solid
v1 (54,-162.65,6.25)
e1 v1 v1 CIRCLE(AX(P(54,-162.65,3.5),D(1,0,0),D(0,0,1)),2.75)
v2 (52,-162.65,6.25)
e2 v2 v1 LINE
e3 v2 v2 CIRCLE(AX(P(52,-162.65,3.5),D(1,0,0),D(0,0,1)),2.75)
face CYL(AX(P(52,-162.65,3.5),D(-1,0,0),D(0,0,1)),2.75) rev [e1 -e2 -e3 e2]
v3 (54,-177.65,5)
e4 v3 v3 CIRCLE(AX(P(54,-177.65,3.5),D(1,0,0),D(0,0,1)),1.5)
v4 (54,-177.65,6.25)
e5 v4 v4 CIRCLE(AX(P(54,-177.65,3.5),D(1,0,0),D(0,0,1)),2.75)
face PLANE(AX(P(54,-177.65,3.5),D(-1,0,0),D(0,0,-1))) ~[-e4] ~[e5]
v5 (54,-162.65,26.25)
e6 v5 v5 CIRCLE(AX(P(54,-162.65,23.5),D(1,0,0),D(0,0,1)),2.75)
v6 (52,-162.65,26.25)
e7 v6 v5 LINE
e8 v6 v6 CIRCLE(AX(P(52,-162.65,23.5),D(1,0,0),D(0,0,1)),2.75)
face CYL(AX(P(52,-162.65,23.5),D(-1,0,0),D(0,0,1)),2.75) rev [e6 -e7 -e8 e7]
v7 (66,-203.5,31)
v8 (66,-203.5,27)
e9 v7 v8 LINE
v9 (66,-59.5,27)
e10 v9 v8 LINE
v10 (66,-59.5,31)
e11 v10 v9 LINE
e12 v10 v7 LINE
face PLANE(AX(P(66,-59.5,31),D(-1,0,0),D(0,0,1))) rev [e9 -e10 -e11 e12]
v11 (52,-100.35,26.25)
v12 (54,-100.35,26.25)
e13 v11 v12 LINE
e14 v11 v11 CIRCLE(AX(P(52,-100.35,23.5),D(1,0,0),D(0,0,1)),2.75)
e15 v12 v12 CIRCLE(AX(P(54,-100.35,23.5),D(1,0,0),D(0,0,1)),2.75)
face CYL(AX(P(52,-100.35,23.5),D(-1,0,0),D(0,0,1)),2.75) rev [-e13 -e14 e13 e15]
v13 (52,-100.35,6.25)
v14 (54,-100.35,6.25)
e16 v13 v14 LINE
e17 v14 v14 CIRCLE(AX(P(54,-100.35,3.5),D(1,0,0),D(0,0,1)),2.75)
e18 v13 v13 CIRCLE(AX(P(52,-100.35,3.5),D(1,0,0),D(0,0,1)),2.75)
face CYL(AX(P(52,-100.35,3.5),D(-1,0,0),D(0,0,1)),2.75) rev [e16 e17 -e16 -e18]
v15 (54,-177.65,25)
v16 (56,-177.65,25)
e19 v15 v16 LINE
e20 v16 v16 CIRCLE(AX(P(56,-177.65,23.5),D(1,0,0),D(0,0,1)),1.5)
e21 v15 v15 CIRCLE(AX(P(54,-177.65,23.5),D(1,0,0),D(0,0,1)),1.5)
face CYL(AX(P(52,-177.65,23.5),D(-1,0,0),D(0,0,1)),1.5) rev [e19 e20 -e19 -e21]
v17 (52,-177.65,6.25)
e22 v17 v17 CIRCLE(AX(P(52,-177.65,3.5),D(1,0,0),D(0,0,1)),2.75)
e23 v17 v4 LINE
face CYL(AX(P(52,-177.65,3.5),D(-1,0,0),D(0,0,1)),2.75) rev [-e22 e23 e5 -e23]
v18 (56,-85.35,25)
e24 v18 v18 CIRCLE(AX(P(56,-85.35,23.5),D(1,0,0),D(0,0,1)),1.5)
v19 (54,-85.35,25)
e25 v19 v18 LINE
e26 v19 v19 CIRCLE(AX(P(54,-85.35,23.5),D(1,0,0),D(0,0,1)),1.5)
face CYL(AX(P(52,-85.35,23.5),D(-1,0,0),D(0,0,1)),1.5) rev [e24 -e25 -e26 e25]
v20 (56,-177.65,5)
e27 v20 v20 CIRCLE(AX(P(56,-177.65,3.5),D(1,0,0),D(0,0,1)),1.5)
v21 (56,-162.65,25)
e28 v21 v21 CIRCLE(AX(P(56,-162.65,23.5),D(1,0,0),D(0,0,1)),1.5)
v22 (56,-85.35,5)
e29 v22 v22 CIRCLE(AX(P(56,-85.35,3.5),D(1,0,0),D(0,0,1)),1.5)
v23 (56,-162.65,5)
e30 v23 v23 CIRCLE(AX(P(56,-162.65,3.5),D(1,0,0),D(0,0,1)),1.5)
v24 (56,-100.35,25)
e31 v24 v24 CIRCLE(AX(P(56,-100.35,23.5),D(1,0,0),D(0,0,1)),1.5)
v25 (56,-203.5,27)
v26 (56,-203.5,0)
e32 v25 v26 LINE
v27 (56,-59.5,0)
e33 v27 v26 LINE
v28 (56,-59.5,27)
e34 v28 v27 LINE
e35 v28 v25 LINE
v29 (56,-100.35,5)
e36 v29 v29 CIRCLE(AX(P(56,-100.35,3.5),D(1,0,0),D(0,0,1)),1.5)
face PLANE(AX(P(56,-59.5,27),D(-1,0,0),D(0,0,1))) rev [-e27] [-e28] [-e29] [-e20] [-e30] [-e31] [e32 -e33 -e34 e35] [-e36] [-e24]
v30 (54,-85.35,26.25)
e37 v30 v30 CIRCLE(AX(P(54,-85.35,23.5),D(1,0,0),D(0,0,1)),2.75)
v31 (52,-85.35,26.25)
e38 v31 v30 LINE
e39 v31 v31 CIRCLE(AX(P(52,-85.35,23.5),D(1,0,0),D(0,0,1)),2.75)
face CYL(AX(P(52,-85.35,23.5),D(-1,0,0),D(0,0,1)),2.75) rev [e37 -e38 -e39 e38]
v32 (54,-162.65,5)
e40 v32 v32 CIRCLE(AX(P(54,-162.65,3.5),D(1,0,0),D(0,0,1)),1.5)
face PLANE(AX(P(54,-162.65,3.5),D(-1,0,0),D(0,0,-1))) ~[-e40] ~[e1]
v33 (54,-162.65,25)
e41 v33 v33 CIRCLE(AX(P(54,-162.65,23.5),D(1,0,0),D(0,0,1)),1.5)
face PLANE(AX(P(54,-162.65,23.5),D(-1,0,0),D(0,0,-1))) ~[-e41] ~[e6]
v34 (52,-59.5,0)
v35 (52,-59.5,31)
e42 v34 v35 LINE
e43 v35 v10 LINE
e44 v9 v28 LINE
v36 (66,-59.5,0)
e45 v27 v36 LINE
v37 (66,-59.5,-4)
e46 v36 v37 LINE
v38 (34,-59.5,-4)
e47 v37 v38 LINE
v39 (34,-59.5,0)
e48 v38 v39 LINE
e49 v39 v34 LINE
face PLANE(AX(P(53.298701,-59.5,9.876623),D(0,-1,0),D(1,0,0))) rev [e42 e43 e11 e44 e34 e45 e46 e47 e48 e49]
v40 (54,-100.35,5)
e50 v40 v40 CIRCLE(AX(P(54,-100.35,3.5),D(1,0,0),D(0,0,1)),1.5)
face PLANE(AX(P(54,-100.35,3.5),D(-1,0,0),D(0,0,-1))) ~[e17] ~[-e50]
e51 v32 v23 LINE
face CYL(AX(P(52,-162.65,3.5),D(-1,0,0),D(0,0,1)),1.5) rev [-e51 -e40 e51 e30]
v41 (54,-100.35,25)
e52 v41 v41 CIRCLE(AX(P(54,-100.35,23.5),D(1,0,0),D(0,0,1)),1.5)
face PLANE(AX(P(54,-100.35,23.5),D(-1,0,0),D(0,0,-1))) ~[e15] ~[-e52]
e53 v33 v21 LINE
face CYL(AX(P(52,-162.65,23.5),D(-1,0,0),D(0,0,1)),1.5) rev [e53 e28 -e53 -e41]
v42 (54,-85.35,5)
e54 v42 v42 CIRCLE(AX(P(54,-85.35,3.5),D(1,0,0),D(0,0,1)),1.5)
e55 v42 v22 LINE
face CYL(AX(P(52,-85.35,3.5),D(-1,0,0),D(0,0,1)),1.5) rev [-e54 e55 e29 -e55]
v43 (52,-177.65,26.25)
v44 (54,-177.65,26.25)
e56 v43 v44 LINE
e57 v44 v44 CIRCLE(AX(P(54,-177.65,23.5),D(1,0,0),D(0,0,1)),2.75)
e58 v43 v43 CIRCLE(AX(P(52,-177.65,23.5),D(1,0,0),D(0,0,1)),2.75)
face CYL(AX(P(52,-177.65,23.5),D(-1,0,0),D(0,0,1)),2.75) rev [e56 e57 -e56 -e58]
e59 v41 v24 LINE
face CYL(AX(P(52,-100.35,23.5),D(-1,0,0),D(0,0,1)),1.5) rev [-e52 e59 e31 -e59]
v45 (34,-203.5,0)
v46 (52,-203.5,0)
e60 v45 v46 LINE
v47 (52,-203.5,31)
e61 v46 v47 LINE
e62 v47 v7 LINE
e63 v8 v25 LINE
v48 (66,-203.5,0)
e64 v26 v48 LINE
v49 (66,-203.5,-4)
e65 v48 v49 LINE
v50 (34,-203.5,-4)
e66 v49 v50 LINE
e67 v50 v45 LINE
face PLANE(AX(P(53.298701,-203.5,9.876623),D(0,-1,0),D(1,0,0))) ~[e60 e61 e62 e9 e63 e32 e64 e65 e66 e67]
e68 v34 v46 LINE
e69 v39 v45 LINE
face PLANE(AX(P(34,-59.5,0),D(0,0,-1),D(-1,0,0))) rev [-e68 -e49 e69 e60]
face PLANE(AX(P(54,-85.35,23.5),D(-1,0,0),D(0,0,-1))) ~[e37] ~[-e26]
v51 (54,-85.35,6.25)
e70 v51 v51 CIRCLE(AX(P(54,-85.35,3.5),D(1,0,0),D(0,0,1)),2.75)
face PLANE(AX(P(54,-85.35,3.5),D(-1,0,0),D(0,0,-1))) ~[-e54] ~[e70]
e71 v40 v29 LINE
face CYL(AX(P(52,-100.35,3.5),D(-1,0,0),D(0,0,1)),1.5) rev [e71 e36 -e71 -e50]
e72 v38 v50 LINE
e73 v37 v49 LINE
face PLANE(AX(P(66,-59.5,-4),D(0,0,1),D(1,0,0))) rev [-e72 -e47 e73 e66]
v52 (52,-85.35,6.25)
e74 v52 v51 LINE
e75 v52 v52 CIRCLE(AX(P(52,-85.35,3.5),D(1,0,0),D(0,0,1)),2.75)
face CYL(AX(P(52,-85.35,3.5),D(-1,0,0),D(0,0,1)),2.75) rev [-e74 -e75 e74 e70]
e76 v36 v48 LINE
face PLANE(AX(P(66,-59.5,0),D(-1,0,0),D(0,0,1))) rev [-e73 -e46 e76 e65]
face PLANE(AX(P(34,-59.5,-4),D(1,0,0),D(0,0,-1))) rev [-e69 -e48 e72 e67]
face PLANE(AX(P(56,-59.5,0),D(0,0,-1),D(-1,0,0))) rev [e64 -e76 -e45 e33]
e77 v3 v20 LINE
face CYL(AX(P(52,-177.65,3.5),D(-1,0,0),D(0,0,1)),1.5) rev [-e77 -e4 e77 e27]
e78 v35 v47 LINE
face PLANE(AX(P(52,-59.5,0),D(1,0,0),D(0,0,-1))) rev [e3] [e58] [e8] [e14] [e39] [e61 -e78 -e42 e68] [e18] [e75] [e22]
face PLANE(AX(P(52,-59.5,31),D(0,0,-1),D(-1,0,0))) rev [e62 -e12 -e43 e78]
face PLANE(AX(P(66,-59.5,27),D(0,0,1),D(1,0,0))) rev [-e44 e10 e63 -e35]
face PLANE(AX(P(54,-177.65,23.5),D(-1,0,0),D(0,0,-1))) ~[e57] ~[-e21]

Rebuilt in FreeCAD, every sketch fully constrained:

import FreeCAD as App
import Part
import Sketcher
from FreeCAD import Vector
Q = App.Units.Quantity

doc = App.newDocument("Part")
params = doc.addObject("Spreadsheet::Sheet", "Params")
for row, (alias, value) in enumerate([
    ("sketch1_width", "10 mm"),
    ("sketch1_width2", "32 mm"),
    ("sketch1_width3", "18 mm"),
    ("sketch1_height", "4 mm"),
    ("sketch1_height2", "27 mm"),
    ("pad1_length", "144 mm"),
    ("sketch2_diameter", "3 mm"),
    ("pocket1_length", "4 mm"),
    ("sketch3_diameter", "5.5 mm"),
    ("pocket2_length", "2 mm"),
], start=1):
    params.set(f"A{row}", alias)
    params.set(f"B{row}", "=" + value)
    params.setAlias(f"B{row}", alias)

body = doc.addObject("PartDesign::Body", "Body")

# Sketch on XZ plane
sketch1 = doc.addObject("Sketcher::SketchObject", "Sketch")
body.addObject(sketch1)
sketch1.AttachmentSupport = (doc.XZ_Plane, [""])
sketch1.MapMode = "FlatFace"
sketch1.addGeometry(Part.LineSegment(Vector(0, 0, 0), Vector(0, -4, 0)), False)
sketch1.addGeometry(Part.LineSegment(Vector(0, -4, 0), Vector(10, -4, 0)), False)
sketch1.addGeometry(Part.LineSegment(Vector(10, -4, 0), Vector(10, -31, 0)), False)
sketch1.addGeometry(Part.LineSegment(Vector(10, -31, 0), Vector(0, -31, 0)), False)
sketch1.addGeometry(Part.LineSegment(Vector(0, -31, 0), Vector(0, -35, 0)), False)
sketch1.addGeometry(Part.LineSegment(Vector(0, -35, 0), Vector(32, -35, 0)), False)
sketch1.addGeometry(Part.LineSegment(Vector(32, -35, 0), Vector(32, -31, 0)), False)
sketch1.addGeometry(Part.LineSegment(Vector(32, -31, 0), Vector(14, -31, 0)), False)
sketch1.addGeometry(Part.LineSegment(Vector(14, -31, 0), Vector(14, 0, 0)), False)
sketch1.addGeometry(Part.LineSegment(Vector(14, 0, 0), Vector(0, 0, 0)), False)
sketch1.addConstraint(Sketcher.Constraint("Coincident", 0, 2, 1, 1))
sketch1.addConstraint(Sketcher.Constraint("Coincident", 1, 2, 2, 1))
sketch1.addConstraint(Sketcher.Constraint("Coincident", 2, 2, 3, 1))
sketch1.addConstraint(Sketcher.Constraint("Coincident", 3, 2, 4, 1))
sketch1.addConstraint(Sketcher.Constraint("Coincident", 4, 2, 5, 1))
sketch1.addConstraint(Sketcher.Constraint("Coincident", 5, 2, 6, 1))
sketch1.addConstraint(Sketcher.Constraint("Coincident", 6, 2, 7, 1))
sketch1.addConstraint(Sketcher.Constraint("Coincident", 7, 2, 8, 1))
sketch1.addConstraint(Sketcher.Constraint("Coincident", 8, 2, 9, 1))
sketch1.addConstraint(Sketcher.Constraint("Coincident", 9, 2, 0, 1))
sketch1.addConstraint(Sketcher.Constraint("Vertical", 0))
sketch1.addConstraint(Sketcher.Constraint("Horizontal", 1))
sketch1.addConstraint(Sketcher.Constraint("Vertical", 2))
sketch1.addConstraint(Sketcher.Constraint("Horizontal", 3))
sketch1.addConstraint(Sketcher.Constraint("Vertical", 4))
sketch1.addConstraint(Sketcher.Constraint("Horizontal", 5))
sketch1.addConstraint(Sketcher.Constraint("Vertical", 6))
sketch1.addConstraint(Sketcher.Constraint("Horizontal", 7))
sketch1.addConstraint(Sketcher.Constraint("Vertical", 8))
sketch1.addConstraint(Sketcher.Constraint("Horizontal", 9))
sketch1.addConstraint(Sketcher.Constraint("Coincident", 9, 2, -1, 1))
sketch1.addConstraint(Sketcher.Constraint("PointOnObject", 3, 2, -2))
sketch1.addConstraint(Sketcher.Constraint("Horizontal", 3, 2, 6, 2))
sketch1.addConstraint(Sketcher.Constraint("Equal", 0, 4))
sketch1.addConstraint(Sketcher.Constraint("DistanceX", 1, 1, 1, 2, Q("10 mm")))
sketch1.addConstraint(Sketcher.Constraint("DistanceX", 5, 1, 5, 2, Q("32 mm")))
sketch1.addConstraint(Sketcher.Constraint("DistanceX", 7, 2, 7, 1, Q("18 mm")))
sketch1.addConstraint(Sketcher.Constraint("DistanceY", 0, 2, 0, 1, Q("4 mm")))
sketch1.addConstraint(Sketcher.Constraint("DistanceY", 2, 2, 2, 1, Q("27 mm")))
sketch1.setExpression("Constraints[24]", "Params.sketch1_width")
sketch1.setExpression("Constraints[25]", "Params.sketch1_width2")
sketch1.setExpression("Constraints[26]", "Params.sketch1_width3")
sketch1.setExpression("Constraints[27]", "Params.sketch1_height")
sketch1.setExpression("Constraints[28]", "Params.sketch1_height2")
pad1 = doc.addObject("PartDesign::Pad", "Pad")
body.addObject(pad1)
pad1.Profile = sketch1
pad1.setExpression("Length", "Params.pad1_length")

# Sketch on YZ plane
sketch2 = doc.addObject("Sketcher::SketchObject", "Sketch001")
body.addObject(sketch2)
sketch2.AttachmentSupport = (doc.YZ_Plane, [""])
sketch2.MapMode = "FlatFace"
sketch2.AttachmentOffset = App.Placement(Vector(0, 0, 14), App.Rotation())
sketch2.addGeometry(Part.Circle(Vector(-118.15, -7.5, 0), Vector(0, 0, 1), 1.5), False)
sketch2.addGeometry(Part.Circle(Vector(-103.15, -7.5, 0), Vector(0, 0, 1), 1.5), False)
sketch2.addGeometry(Part.Circle(Vector(-103.15, -27.5, 0), Vector(0, 0, 1), 1.5), False)
sketch2.addGeometry(Part.Circle(Vector(-118.15, -27.5, 0), Vector(0, 0, 1), 1.5), False)
sketch2.addGeometry(Part.Circle(Vector(-40.85, -27.5, 0), Vector(0, 0, 1), 1.5), False)
sketch2.addGeometry(Part.Circle(Vector(-25.85, -27.5, 0), Vector(0, 0, 1), 1.5), False)
sketch2.addGeometry(Part.Circle(Vector(-25.85, -7.5, 0), Vector(0, 0, 1), 1.5), False)
sketch2.addGeometry(Part.Circle(Vector(-40.85, -7.5, 0), Vector(0, 0, 1), 1.5), False)
sketch2.addConstraint(Sketcher.Constraint("Equal", 0, 1))
sketch2.addConstraint(Sketcher.Constraint("Equal", 1, 2))
sketch2.addConstraint(Sketcher.Constraint("Equal", 2, 3))
sketch2.addConstraint(Sketcher.Constraint("Equal", 3, 4))
sketch2.addConstraint(Sketcher.Constraint("Equal", 4, 5))
sketch2.addConstraint(Sketcher.Constraint("Equal", 5, 6))
sketch2.addConstraint(Sketcher.Constraint("Equal", 6, 7))
sketch2.addConstraint(Sketcher.Constraint("Horizontal", 0, 3, 1, 3))
sketch2.addConstraint(Sketcher.Constraint("Horizontal", 2, 3, 3, 3))
sketch2.addConstraint(Sketcher.Constraint("Horizontal", 3, 3, 4, 3))
sketch2.addConstraint(Sketcher.Constraint("Horizontal", 4, 3, 5, 3))
sketch2.addConstraint(Sketcher.Constraint("Horizontal", 1, 3, 6, 3))
sketch2.addConstraint(Sketcher.Constraint("Horizontal", 6, 3, 7, 3))
sketch2.addConstraint(Sketcher.Constraint("Vertical", 1, 3, 2, 3))
sketch2.addConstraint(Sketcher.Constraint("Vertical", 0, 3, 3, 3))
sketch2.addConstraint(Sketcher.Constraint("Vertical", 5, 3, 6, 3))
sketch2.addConstraint(Sketcher.Constraint("Vertical", 4, 3, 7, 3))
sketch2.addConstraint(Sketcher.Constraint("Diameter", 0, Q("3 mm")))
sketch2.addConstraint(Sketcher.Constraint("DistanceX", 0, 3, 1, 3, Q("15 mm")))
sketch2.addConstraint(Sketcher.Constraint("DistanceY", 2, 3, 1, 3, Q("20 mm")))
sketch2.addConstraint(Sketcher.Constraint("DistanceX", 4, 3, 5, 3, Q("15 mm")))
sketch2.addConstraint(Sketcher.Constraint("DistanceY", 0, 3, -1, 1, Q("7.5 mm")))
sketch2.addConstraint(Sketcher.Constraint("DistanceX", 2, 3, 4, 3, Q("62.3 mm")))
sketch2.addConstraint(Sketcher.Constraint("DistanceX", 0, 3, -1, 1, Q("118.15 mm")))
sketch2.setExpression("Constraints[17]", "Params.sketch2_diameter")
pocket1 = doc.addObject("PartDesign::Pocket", "Pocket")
body.addObject(pocket1)
pocket1.Profile = sketch2
pocket1.setExpression("Length", "Params.pocket1_length")

# Sketch on YZ plane
sketch3 = doc.addObject("Sketcher::SketchObject", "Sketch002")
body.addObject(sketch3)
sketch3.AttachmentSupport = (doc.YZ_Plane, [""])
sketch3.MapMode = "FlatFace"
sketch3.AttachmentOffset = App.Placement(Vector(0, 0, 14), App.Rotation())
sketch3.addGeometry(Part.Circle(Vector(-118.15, -7.5, 0), Vector(0, 0, 1), 2.75), False)
sketch3.addGeometry(Part.Circle(Vector(-103.15, -7.5, 0), Vector(0, 0, 1), 2.75), False)
sketch3.addGeometry(Part.Circle(Vector(-103.15, -27.5, 0), Vector(0, 0, 1), 2.75), False)
sketch3.addGeometry(Part.Circle(Vector(-118.15, -27.5, 0), Vector(0, 0, 1), 2.75), False)
sketch3.addGeometry(Part.Circle(Vector(-40.85, -27.5, 0), Vector(0, 0, 1), 2.75), False)
sketch3.addGeometry(Part.Circle(Vector(-25.85, -27.5, 0), Vector(0, 0, 1), 2.75), False)
sketch3.addGeometry(Part.Circle(Vector(-25.85, -7.5, 0), Vector(0, 0, 1), 2.75), False)
sketch3.addGeometry(Part.Circle(Vector(-40.85, -7.5, 0), Vector(0, 0, 1), 2.75), False)
sketch3.addConstraint(Sketcher.Constraint("Equal", 0, 1))
sketch3.addConstraint(Sketcher.Constraint("Equal", 1, 2))
sketch3.addConstraint(Sketcher.Constraint("Equal", 2, 3))
sketch3.addConstraint(Sketcher.Constraint("Equal", 3, 4))
sketch3.addConstraint(Sketcher.Constraint("Equal", 4, 5))
sketch3.addConstraint(Sketcher.Constraint("Equal", 5, 6))
sketch3.addConstraint(Sketcher.Constraint("Equal", 6, 7))
sketch3.addConstraint(Sketcher.Constraint("Horizontal", 0, 3, 1, 3))
sketch3.addConstraint(Sketcher.Constraint("Horizontal", 2, 3, 3, 3))
sketch3.addConstraint(Sketcher.Constraint("Horizontal", 3, 3, 4, 3))
sketch3.addConstraint(Sketcher.Constraint("Horizontal", 4, 3, 5, 3))
sketch3.addConstraint(Sketcher.Constraint("Horizontal", 1, 3, 6, 3))
sketch3.addConstraint(Sketcher.Constraint("Horizontal", 6, 3, 7, 3))
sketch3.addConstraint(Sketcher.Constraint("Vertical", 1, 3, 2, 3))
sketch3.addConstraint(Sketcher.Constraint("Vertical", 0, 3, 3, 3))
sketch3.addConstraint(Sketcher.Constraint("Vertical", 5, 3, 6, 3))
sketch3.addConstraint(Sketcher.Constraint("Vertical", 4, 3, 7, 3))
sketch3.addConstraint(Sketcher.Constraint("Diameter", 0, Q("5.5 mm")))
sketch3.addConstraint(Sketcher.Constraint("DistanceX", 0, 3, 1, 3, Q("15 mm")))
sketch3.addConstraint(Sketcher.Constraint("DistanceY", 2, 3, 1, 3, Q("20 mm")))
sketch3.addConstraint(Sketcher.Constraint("DistanceX", 4, 3, 5, 3, Q("15 mm")))
sketch3.addConstraint(Sketcher.Constraint("DistanceY", 0, 3, -1, 1, Q("7.5 mm")))
sketch3.addConstraint(Sketcher.Constraint("DistanceX", 2, 3, 4, 3, Q("62.3 mm")))
sketch3.addConstraint(Sketcher.Constraint("DistanceX", 0, 3, -1, 1, Q("118.15 mm")))
sketch3.setExpression("Constraints[17]", "Params.sketch3_diameter")
pocket2 = doc.addObject("PartDesign::Pocket", "Pocket001")
body.addObject(pocket2)
pocket2.Profile = sketch3
pocket2.setExpression("Length", "Params.pocket2_length")
body2 = doc.addObject("PartDesign::Body", "Body001")
doc.recompute()

body.Placement = App.Placement(Vector(-66, -59.5, 31), App.Rotation(Vector(0, 0, 1), 0))
boolean = doc.addObject("PartDesign::Boolean", "Boolean")
body2.addObject(boolean)
boolean.Type = "Fuse"
boolean.addObjects([body])
body3 = doc.addObject("PartDesign::Body", "Body002")
doc.recompute()

mirroring = doc.addObject("Part::Mirroring", "Mirroring")
mirroring.Source = body2
mirroring.Base = Vector(0, 0, 0)
mirroring.Normal = Vector(1, 0, 0)
body3.BaseFeature = mirroring
doc.recompute()
body2.Visibility = False
mirroring.Visibility = False

doc.recompute()
